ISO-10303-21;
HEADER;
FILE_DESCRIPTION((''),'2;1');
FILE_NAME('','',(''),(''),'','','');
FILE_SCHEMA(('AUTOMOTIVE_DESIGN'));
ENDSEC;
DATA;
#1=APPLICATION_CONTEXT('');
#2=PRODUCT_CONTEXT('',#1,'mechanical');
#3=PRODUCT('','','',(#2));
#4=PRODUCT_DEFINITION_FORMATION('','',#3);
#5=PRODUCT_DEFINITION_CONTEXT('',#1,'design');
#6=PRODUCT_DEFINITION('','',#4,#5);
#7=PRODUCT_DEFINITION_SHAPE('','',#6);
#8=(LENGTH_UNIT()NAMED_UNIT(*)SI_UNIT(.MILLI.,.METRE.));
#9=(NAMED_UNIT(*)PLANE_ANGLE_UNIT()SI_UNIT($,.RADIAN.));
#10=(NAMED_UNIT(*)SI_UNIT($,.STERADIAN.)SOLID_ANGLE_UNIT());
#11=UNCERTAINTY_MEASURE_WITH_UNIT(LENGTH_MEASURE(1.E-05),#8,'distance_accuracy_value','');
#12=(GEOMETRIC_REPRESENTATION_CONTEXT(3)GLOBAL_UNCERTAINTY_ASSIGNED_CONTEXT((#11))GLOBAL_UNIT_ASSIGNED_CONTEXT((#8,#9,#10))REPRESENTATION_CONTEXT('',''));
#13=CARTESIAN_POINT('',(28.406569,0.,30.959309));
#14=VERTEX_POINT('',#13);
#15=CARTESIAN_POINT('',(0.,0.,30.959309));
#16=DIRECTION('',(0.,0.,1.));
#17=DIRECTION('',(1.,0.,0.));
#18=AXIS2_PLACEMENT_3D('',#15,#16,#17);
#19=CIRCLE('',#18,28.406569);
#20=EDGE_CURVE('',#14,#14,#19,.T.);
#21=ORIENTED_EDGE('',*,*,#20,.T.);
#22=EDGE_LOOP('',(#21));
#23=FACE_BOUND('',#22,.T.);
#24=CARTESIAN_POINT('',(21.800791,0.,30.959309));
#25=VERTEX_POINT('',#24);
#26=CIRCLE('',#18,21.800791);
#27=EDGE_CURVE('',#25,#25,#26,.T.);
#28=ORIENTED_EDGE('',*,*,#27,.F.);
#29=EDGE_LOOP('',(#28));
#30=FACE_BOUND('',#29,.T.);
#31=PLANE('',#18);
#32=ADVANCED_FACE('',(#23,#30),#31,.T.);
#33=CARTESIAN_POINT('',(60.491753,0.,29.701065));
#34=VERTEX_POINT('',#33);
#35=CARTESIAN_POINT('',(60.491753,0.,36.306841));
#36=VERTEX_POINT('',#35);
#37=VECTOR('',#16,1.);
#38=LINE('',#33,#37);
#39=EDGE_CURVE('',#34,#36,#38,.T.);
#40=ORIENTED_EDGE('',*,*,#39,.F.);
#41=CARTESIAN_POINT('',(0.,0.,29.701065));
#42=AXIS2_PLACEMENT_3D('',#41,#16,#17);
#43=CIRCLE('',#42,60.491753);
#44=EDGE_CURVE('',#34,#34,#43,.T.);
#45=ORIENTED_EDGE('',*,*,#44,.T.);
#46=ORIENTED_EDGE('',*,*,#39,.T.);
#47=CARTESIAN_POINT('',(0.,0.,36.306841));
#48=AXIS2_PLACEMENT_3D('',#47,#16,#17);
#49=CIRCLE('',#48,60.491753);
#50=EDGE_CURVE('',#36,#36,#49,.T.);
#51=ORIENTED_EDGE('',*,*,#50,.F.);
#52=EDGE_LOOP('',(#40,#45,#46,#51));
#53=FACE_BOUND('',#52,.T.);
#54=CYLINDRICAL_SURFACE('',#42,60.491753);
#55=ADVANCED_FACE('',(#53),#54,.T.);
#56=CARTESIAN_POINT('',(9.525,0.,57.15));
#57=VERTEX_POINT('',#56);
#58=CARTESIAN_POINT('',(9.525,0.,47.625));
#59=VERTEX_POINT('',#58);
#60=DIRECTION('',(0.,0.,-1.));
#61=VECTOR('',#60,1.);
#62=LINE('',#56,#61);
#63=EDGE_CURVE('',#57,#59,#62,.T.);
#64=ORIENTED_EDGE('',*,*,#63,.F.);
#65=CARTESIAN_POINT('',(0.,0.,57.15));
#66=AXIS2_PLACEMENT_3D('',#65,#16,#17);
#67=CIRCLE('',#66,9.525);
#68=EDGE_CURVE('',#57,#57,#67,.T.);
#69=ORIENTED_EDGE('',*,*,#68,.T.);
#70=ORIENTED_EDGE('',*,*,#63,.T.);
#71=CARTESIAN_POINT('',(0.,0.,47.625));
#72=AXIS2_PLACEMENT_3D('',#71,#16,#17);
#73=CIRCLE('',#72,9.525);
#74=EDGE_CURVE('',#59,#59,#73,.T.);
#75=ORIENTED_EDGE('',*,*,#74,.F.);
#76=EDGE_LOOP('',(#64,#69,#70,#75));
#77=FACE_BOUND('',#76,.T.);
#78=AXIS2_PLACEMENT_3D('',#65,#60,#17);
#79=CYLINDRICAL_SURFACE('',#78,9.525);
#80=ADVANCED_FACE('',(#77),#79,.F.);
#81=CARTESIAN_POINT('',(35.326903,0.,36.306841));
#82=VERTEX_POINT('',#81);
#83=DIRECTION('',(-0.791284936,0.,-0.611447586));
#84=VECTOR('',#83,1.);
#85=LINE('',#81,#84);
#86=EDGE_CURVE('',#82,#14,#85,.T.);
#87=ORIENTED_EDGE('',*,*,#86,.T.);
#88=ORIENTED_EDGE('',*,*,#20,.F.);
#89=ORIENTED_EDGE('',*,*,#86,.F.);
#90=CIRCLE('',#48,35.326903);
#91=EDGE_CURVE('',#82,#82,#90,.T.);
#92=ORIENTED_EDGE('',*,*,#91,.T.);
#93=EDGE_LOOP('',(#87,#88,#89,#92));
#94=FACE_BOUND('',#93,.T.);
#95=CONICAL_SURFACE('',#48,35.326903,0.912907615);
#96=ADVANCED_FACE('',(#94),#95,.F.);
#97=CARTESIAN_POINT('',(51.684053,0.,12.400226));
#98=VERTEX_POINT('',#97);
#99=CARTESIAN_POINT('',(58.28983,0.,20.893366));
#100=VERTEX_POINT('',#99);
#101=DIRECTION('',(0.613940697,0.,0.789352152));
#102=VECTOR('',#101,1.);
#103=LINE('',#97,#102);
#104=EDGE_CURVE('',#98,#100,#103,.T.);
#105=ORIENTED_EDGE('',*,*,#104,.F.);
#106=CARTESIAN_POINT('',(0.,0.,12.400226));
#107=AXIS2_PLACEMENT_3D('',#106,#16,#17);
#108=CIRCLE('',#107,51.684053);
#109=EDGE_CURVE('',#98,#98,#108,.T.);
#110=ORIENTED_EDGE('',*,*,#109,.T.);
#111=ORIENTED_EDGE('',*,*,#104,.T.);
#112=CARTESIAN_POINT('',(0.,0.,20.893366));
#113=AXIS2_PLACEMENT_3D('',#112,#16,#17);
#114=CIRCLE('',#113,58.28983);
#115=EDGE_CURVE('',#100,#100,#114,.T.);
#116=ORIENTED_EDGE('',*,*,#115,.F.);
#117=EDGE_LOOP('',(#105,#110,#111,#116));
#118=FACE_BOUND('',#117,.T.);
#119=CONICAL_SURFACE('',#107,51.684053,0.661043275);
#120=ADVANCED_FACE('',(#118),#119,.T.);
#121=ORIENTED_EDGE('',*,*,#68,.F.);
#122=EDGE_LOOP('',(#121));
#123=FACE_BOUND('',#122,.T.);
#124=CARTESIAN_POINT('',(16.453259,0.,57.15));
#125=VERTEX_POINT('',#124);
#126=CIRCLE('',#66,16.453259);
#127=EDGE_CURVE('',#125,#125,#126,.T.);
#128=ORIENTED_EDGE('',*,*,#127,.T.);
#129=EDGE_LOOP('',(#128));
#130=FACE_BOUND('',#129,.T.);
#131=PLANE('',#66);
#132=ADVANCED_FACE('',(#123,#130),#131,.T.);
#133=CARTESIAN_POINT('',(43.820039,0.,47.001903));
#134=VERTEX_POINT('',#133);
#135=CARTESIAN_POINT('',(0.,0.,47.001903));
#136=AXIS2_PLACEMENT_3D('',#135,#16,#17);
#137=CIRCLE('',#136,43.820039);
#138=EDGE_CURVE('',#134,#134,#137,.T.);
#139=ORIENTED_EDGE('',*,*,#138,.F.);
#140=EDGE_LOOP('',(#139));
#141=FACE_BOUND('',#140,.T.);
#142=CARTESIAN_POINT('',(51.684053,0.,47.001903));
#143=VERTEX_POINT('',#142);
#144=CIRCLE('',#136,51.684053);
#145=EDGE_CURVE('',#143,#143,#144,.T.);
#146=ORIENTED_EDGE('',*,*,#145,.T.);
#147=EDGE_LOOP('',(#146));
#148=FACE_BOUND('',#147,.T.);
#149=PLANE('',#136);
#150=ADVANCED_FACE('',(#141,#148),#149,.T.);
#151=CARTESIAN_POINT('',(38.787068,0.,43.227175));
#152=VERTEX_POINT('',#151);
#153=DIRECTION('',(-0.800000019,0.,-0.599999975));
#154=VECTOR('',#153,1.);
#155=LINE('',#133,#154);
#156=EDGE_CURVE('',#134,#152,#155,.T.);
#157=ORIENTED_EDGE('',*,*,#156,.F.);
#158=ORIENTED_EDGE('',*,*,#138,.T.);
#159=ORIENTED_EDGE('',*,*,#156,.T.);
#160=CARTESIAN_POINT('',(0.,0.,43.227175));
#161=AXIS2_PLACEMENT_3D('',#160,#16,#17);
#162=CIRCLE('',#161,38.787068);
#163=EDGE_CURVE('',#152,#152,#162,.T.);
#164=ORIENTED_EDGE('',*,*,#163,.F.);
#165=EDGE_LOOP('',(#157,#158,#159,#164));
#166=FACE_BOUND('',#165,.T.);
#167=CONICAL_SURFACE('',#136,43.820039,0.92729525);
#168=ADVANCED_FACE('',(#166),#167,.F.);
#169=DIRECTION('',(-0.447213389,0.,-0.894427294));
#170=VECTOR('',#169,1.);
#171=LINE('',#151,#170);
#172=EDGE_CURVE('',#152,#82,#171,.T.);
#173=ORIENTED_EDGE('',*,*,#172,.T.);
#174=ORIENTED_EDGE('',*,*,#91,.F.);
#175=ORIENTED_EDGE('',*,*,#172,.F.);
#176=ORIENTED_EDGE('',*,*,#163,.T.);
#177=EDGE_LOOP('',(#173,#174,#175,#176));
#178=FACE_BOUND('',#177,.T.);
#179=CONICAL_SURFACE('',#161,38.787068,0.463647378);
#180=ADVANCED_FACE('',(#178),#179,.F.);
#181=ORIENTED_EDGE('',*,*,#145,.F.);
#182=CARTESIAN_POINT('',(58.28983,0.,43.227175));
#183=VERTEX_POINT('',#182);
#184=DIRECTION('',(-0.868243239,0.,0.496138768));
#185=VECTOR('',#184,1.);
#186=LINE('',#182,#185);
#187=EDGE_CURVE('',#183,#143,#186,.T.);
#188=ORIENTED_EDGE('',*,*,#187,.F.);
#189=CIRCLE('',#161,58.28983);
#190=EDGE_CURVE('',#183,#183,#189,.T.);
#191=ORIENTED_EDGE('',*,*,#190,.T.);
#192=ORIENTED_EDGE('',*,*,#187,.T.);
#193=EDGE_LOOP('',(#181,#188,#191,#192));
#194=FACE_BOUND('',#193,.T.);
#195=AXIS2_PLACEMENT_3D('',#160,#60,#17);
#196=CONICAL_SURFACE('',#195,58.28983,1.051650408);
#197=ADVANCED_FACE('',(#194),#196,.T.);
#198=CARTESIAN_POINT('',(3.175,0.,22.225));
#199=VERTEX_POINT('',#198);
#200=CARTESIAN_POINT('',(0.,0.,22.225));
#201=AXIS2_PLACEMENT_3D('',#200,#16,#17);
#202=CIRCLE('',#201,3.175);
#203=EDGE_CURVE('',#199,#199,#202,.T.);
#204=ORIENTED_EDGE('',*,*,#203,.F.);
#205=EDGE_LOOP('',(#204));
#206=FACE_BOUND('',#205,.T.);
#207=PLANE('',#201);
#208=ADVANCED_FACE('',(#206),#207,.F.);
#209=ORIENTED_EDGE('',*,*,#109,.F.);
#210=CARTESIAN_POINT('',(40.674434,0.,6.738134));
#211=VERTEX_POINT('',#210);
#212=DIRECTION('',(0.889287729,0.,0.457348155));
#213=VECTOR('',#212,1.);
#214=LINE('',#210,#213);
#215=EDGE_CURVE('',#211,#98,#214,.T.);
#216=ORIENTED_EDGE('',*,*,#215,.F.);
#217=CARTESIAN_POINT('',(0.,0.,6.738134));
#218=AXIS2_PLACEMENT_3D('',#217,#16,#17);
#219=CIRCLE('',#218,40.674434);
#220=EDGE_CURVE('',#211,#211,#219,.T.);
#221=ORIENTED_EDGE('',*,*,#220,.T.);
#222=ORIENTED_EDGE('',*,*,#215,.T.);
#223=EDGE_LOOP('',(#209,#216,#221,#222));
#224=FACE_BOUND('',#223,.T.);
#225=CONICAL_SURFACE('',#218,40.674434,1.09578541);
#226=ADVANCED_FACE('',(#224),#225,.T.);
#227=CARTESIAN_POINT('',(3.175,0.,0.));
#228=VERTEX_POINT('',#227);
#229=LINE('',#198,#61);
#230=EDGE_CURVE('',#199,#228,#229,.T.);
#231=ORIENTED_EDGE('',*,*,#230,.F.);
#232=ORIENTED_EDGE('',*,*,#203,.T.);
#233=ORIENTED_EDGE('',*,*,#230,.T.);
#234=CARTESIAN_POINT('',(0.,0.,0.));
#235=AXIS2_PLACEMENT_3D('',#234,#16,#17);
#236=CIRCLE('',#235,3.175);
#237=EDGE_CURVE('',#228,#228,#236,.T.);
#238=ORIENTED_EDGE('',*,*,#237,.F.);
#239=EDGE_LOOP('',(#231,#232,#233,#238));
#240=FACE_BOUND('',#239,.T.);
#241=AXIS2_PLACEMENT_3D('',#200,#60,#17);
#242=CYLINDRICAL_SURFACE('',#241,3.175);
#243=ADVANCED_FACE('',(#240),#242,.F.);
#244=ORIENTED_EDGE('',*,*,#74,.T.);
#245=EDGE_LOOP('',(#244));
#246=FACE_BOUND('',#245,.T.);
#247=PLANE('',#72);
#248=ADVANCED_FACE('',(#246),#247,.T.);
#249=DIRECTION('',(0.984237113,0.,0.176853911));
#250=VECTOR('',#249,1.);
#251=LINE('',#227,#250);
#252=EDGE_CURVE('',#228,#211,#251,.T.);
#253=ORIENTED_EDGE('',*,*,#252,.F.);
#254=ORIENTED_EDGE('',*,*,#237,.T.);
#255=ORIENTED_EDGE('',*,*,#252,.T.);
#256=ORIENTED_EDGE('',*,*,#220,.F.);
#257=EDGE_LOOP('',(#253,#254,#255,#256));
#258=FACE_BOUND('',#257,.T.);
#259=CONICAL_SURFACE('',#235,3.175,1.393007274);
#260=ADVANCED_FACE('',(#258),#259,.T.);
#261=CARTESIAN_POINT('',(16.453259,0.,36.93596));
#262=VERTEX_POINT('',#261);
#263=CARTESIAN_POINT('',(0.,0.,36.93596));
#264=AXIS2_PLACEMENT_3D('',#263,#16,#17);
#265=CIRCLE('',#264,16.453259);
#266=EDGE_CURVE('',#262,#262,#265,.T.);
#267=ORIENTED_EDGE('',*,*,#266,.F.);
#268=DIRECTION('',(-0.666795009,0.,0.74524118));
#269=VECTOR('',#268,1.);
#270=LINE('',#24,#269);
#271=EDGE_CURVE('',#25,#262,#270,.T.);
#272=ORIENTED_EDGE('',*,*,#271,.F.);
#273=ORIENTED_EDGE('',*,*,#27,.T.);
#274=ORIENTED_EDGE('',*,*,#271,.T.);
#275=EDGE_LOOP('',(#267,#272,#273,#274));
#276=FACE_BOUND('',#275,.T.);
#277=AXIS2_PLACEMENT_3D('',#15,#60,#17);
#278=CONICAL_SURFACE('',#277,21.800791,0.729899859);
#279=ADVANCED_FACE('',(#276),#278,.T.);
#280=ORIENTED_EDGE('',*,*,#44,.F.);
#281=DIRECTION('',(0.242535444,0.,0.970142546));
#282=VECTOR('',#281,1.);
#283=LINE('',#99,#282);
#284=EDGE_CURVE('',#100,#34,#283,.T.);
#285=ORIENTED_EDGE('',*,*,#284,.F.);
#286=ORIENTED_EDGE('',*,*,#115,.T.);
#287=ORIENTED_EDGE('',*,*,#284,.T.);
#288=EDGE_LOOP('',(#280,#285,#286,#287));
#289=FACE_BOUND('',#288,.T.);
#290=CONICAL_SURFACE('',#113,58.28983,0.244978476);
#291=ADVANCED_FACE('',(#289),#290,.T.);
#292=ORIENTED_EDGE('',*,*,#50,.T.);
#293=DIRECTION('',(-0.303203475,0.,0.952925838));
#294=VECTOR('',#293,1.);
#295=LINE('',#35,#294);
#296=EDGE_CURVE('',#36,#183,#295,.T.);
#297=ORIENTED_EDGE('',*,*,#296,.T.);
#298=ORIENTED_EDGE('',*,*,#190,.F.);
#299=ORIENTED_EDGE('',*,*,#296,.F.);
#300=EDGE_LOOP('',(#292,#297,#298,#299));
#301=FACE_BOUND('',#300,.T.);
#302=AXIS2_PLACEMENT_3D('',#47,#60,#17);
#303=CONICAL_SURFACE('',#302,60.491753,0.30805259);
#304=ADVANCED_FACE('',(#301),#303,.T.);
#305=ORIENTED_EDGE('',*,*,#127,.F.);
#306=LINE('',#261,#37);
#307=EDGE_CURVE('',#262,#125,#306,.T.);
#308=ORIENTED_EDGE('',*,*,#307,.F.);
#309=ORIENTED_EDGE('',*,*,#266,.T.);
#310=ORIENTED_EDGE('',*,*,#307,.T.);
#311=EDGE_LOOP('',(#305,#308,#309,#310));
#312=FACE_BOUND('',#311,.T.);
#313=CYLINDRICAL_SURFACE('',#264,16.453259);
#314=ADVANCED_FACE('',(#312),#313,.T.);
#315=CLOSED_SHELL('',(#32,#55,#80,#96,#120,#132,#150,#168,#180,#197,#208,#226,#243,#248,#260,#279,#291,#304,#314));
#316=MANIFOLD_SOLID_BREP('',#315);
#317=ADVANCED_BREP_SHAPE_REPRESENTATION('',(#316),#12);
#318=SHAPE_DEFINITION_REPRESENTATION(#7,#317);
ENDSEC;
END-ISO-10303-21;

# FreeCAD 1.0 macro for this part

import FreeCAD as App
import Part
import Sketcher
Q = App.Units.Quantity

doc = App.newDocument("Part")
body = doc.addObject("PartDesign::Body", "Body")

sketch1 = body.newObject("Sketcher::SketchObject", "Sketch")
sketch1.AttachmentSupport = (doc.getObject("XZ_Plane"), [""])
sketch1.MapMode = "FlatFace"
sketch1.addGeometry(Part.LineSegment(App.Vector(3.2, 22.2, 0), App.Vector(3.2, 0, 0)), False)
sketch1.addGeometry(Part.LineSegment(App.Vector(3.2, 0, 0), App.Vector(40.7, 6.7, 0)), False)
sketch1.addGeometry(Part.LineSegment(App.Vector(40.7, 6.7, 0), App.Vector(51.7, 12.4, 0)), False)
sketch1.addGeometry(Part.LineSegment(App.Vector(51.7, 12.4, 0), App.Vector(58.3, 20.9, 0)), False)
sketch1.addGeometry(Part.LineSegment(App.Vector(58.3, 20.9, 0), App.Vector(60.5, 29.7, 0)), False)
sketch1.addGeometry(Part.LineSegment(App.Vector(60.5, 29.7, 0), App.Vector(60.5, 36.3, 0)), False)
sketch1.addGeometry(Part.LineSegment(App.Vector(60.5, 36.3, 0), App.Vector(58.3, 43.2, 0)), False)
sketch1.addGeometry(Part.LineSegment(App.Vector(58.3, 43.2, 0), App.Vector(51.7, 47, 0)), False)
sketch1.addGeometry(Part.LineSegment(App.Vector(51.7, 47, 0), App.Vector(43.8, 47, 0)), False)
sketch1.addGeometry(Part.LineSegment(App.Vector(43.8, 47, 0), App.Vector(38.8, 43.2, 0)), False)
sketch1.addGeometry(Part.LineSegment(App.Vector(38.8, 43.2, 0), App.Vector(35.3, 36.3, 0)), False)
sketch1.addGeometry(Part.LineSegment(App.Vector(35.3, 36.3, 0), App.Vector(28.4, 31, 0)), False)
sketch1.addGeometry(Part.LineSegment(App.Vector(28.4, 31, 0), App.Vector(21.8, 31, 0)), False)
sketch1.addGeometry(Part.LineSegment(App.Vector(21.8, 31, 0), App.Vector(16.5, 36.9, 0)), False)
sketch1.addGeometry(Part.LineSegment(App.Vector(16.5, 36.9, 0), App.Vector(16.5, 57.1, 0)), False)
sketch1.addGeometry(Part.LineSegment(App.Vector(16.5, 57.1, 0), App.Vector(9.5, 57.1, 0)), False)
sketch1.addGeometry(Part.LineSegment(App.Vector(9.5, 57.1, 0), App.Vector(9.5, 47.6, 0)), False)
sketch1.addGeometry(Part.LineSegment(App.Vector(9.5, 47.6, 0), App.Vector(0, 47.6, 0)), False)
sketch1.addGeometry(Part.LineSegment(App.Vector(0, 47.6, 0), App.Vector(0, 22.2, 0)), False)
sketch1.addGeometry(Part.LineSegment(App.Vector(0, 22.2, 0), App.Vector(3.2, 22.2, 0)), False)
sketch1.addConstraint(Sketcher.Constraint("Coincident", 0, 2, 1, 1))
sketch1.addConstraint(Sketcher.Constraint("Coincident", 1, 2, 2, 1))
sketch1.addConstraint(Sketcher.Constraint("Coincident", 2, 2, 3, 1))
sketch1.addConstraint(Sketcher.Constraint("Coincident", 3, 2, 4, 1))
sketch1.addConstraint(Sketcher.Constraint("Coincident", 4, 2, 5, 1))
sketch1.addConstraint(Sketcher.Constraint("Coincident", 5, 2, 6, 1))
sketch1.addConstraint(Sketcher.Constraint("Coincident", 6, 2, 7, 1))
sketch1.addConstraint(Sketcher.Constraint("Coincident", 7, 2, 8, 1))
sketch1.addConstraint(Sketcher.Constraint("Coincident", 8, 2, 9, 1))
sketch1.addConstraint(Sketcher.Constraint("Coincident", 9, 2, 10, 1))
sketch1.addConstraint(Sketcher.Constraint("Coincident", 10, 2, 11, 1))
sketch1.addConstraint(Sketcher.Constraint("Coincident", 11, 2, 12, 1))
sketch1.addConstraint(Sketcher.Constraint("Coincident", 12, 2, 13, 1))
sketch1.addConstraint(Sketcher.Constraint("Coincident", 13, 2, 14, 1))
sketch1.addConstraint(Sketcher.Constraint("Coincident", 14, 2, 15, 1))
sketch1.addConstraint(Sketcher.Constraint("Coincident", 15, 2, 16, 1))
sketch1.addConstraint(Sketcher.Constraint("Coincident", 16, 2, 17, 1))
sketch1.addConstraint(Sketcher.Constraint("Coincident", 17, 2, 18, 1))
sketch1.addConstraint(Sketcher.Constraint("Coincident", 18, 2, 19, 1))
sketch1.addConstraint(Sketcher.Constraint("Coincident", 19, 2, 0, 1))
sketch1.addConstraint(Sketcher.Constraint("Vertical", 0))
sketch1.addConstraint(Sketcher.Constraint("Vertical", 5))
sketch1.addConstraint(Sketcher.Constraint("Horizontal", 8))
sketch1.addConstraint(Sketcher.Constraint("Horizontal", 12))
sketch1.addConstraint(Sketcher.Constraint("Vertical", 14))
sketch1.addConstraint(Sketcher.Constraint("Horizontal", 15))
sketch1.addConstraint(Sketcher.Constraint("Vertical", 16))
sketch1.addConstraint(Sketcher.Constraint("Horizontal", 17))
sketch1.addConstraint(Sketcher.Constraint("Vertical", 18))
sketch1.addConstraint(Sketcher.Constraint("Horizontal", 19))
sketch1.addConstraint(Sketcher.Constraint("PointOnObject", 0, 2, -1))
sketch1.addConstraint(Sketcher.Constraint("PointOnObject", 17, 2, -2))
sketch1.addConstraint(Sketcher.Constraint("Horizontal", 6, 2, 9, 2))
sketch1.addConstraint(Sketcher.Constraint("Horizontal", 5, 2, 10, 2))
sketch1.addConstraint(Sketcher.Constraint("Vertical", 3, 2, 6, 2))
sketch1.addConstraint(Sketcher.Constraint("Vertical", 2, 2, 7, 2))
sketch1.addConstraint(Sketcher.Constraint("Equal", 17, 16))
sketch1.addConstraint(Sketcher.Constraint("DistanceY", 18, 2, 18, 1, Q("1 in")))
sketch1.addConstraint(Sketcher.Constraint("Distance", 1, Q("1.5 in")))
sketch1.addConstraint(Sketcher.Constraint("DistanceX", 17, 2, 17, 1, Q("0.375 in")))
sketch1.addConstraint(Sketcher.Constraint("DistanceX", 19, 1, 19, 2, Q("0.125 in")))
sketch1.addConstraint(Sketcher.Constraint("DistanceY", 0, 2, 0, 1, Q("0.875 in")))
sketch1.addConstraint(Sketcher.Constraint("DistanceX", 12, 2, 12, 1, Q("6.605778 mm")))
sketch1.addConstraint(Sketcher.Constraint("DistanceX", 15, 2, 15, 1, Q("6.928259 mm")))
sketch1.addConstraint(Sketcher.Constraint("DistanceY", 14, 1, 14, 2, Q("20.21404 mm")))
sketch1.addConstraint(Sketcher.Constraint("DistanceY", 3, 2, 4, 2, Q("8.807699 mm")))
sketch1.addConstraint(Sketcher.Constraint("DistanceX", 2, 2, 4, 2, Q("8.8077 mm")))
sketch1.addConstraint(Sketcher.Constraint("DistanceX", 11, 2, 9, 2, Q("10.380499 mm")))
sketch1.addConstraint(Sketcher.Constraint("Distance", 7, Q("7.60821 mm")))
sketch1.addConstraint(Sketcher.Constraint("Distance", 11, Q("8.745692 mm")))
sketch1.addConstraint(Sketcher.Constraint("DistanceX", 8, 2, 8, 1, Q("7.864014 mm")))
sketch1.addConstraint(Sketcher.Constraint("DistanceY", 5, 1, 5, 2, Q("6.605776 mm")))
sketch1.addConstraint(Sketcher.Constraint("DistanceX", -1, 1, 3, 2, Q("58.28983 mm")))
sketch1.addConstraint(Sketcher.Constraint("DistanceY", -1, 1, 5, 2, Q("36.306841 mm")))
sketch1.addConstraint(Sketcher.Constraint("DistanceX", -1, 1, 8, 2, Q("43.820039 mm")))
sketch1.addConstraint(Sketcher.Constraint("DistanceX", -1, 1, 11, 2, Q("28.406569 mm")))
sketch1.addConstraint(Sketcher.Constraint("DistanceY", -1, 1, 11, 2, Q("30.959309 mm")))
sketch1.addConstraint(Sketcher.Constraint("DistanceX", 1, 2, 2, 2, Q("11.009619 mm")))
sketch1.addConstraint(Sketcher.Constraint("DistanceY", 2, 2, 3, 2, Q("8.49314 mm")))
sketch1.addConstraint(Sketcher.Constraint("DistanceY", 4, 2, 6, 2, Q("13.52611 mm")))
revolution = body.newObject("PartDesign::Revolution", "Revolution")
revolution.Profile = sketch1
revolution.ReferenceAxis = (sketch1, ["V_Axis"])
revolution.Angle = 360

doc.recompute()
